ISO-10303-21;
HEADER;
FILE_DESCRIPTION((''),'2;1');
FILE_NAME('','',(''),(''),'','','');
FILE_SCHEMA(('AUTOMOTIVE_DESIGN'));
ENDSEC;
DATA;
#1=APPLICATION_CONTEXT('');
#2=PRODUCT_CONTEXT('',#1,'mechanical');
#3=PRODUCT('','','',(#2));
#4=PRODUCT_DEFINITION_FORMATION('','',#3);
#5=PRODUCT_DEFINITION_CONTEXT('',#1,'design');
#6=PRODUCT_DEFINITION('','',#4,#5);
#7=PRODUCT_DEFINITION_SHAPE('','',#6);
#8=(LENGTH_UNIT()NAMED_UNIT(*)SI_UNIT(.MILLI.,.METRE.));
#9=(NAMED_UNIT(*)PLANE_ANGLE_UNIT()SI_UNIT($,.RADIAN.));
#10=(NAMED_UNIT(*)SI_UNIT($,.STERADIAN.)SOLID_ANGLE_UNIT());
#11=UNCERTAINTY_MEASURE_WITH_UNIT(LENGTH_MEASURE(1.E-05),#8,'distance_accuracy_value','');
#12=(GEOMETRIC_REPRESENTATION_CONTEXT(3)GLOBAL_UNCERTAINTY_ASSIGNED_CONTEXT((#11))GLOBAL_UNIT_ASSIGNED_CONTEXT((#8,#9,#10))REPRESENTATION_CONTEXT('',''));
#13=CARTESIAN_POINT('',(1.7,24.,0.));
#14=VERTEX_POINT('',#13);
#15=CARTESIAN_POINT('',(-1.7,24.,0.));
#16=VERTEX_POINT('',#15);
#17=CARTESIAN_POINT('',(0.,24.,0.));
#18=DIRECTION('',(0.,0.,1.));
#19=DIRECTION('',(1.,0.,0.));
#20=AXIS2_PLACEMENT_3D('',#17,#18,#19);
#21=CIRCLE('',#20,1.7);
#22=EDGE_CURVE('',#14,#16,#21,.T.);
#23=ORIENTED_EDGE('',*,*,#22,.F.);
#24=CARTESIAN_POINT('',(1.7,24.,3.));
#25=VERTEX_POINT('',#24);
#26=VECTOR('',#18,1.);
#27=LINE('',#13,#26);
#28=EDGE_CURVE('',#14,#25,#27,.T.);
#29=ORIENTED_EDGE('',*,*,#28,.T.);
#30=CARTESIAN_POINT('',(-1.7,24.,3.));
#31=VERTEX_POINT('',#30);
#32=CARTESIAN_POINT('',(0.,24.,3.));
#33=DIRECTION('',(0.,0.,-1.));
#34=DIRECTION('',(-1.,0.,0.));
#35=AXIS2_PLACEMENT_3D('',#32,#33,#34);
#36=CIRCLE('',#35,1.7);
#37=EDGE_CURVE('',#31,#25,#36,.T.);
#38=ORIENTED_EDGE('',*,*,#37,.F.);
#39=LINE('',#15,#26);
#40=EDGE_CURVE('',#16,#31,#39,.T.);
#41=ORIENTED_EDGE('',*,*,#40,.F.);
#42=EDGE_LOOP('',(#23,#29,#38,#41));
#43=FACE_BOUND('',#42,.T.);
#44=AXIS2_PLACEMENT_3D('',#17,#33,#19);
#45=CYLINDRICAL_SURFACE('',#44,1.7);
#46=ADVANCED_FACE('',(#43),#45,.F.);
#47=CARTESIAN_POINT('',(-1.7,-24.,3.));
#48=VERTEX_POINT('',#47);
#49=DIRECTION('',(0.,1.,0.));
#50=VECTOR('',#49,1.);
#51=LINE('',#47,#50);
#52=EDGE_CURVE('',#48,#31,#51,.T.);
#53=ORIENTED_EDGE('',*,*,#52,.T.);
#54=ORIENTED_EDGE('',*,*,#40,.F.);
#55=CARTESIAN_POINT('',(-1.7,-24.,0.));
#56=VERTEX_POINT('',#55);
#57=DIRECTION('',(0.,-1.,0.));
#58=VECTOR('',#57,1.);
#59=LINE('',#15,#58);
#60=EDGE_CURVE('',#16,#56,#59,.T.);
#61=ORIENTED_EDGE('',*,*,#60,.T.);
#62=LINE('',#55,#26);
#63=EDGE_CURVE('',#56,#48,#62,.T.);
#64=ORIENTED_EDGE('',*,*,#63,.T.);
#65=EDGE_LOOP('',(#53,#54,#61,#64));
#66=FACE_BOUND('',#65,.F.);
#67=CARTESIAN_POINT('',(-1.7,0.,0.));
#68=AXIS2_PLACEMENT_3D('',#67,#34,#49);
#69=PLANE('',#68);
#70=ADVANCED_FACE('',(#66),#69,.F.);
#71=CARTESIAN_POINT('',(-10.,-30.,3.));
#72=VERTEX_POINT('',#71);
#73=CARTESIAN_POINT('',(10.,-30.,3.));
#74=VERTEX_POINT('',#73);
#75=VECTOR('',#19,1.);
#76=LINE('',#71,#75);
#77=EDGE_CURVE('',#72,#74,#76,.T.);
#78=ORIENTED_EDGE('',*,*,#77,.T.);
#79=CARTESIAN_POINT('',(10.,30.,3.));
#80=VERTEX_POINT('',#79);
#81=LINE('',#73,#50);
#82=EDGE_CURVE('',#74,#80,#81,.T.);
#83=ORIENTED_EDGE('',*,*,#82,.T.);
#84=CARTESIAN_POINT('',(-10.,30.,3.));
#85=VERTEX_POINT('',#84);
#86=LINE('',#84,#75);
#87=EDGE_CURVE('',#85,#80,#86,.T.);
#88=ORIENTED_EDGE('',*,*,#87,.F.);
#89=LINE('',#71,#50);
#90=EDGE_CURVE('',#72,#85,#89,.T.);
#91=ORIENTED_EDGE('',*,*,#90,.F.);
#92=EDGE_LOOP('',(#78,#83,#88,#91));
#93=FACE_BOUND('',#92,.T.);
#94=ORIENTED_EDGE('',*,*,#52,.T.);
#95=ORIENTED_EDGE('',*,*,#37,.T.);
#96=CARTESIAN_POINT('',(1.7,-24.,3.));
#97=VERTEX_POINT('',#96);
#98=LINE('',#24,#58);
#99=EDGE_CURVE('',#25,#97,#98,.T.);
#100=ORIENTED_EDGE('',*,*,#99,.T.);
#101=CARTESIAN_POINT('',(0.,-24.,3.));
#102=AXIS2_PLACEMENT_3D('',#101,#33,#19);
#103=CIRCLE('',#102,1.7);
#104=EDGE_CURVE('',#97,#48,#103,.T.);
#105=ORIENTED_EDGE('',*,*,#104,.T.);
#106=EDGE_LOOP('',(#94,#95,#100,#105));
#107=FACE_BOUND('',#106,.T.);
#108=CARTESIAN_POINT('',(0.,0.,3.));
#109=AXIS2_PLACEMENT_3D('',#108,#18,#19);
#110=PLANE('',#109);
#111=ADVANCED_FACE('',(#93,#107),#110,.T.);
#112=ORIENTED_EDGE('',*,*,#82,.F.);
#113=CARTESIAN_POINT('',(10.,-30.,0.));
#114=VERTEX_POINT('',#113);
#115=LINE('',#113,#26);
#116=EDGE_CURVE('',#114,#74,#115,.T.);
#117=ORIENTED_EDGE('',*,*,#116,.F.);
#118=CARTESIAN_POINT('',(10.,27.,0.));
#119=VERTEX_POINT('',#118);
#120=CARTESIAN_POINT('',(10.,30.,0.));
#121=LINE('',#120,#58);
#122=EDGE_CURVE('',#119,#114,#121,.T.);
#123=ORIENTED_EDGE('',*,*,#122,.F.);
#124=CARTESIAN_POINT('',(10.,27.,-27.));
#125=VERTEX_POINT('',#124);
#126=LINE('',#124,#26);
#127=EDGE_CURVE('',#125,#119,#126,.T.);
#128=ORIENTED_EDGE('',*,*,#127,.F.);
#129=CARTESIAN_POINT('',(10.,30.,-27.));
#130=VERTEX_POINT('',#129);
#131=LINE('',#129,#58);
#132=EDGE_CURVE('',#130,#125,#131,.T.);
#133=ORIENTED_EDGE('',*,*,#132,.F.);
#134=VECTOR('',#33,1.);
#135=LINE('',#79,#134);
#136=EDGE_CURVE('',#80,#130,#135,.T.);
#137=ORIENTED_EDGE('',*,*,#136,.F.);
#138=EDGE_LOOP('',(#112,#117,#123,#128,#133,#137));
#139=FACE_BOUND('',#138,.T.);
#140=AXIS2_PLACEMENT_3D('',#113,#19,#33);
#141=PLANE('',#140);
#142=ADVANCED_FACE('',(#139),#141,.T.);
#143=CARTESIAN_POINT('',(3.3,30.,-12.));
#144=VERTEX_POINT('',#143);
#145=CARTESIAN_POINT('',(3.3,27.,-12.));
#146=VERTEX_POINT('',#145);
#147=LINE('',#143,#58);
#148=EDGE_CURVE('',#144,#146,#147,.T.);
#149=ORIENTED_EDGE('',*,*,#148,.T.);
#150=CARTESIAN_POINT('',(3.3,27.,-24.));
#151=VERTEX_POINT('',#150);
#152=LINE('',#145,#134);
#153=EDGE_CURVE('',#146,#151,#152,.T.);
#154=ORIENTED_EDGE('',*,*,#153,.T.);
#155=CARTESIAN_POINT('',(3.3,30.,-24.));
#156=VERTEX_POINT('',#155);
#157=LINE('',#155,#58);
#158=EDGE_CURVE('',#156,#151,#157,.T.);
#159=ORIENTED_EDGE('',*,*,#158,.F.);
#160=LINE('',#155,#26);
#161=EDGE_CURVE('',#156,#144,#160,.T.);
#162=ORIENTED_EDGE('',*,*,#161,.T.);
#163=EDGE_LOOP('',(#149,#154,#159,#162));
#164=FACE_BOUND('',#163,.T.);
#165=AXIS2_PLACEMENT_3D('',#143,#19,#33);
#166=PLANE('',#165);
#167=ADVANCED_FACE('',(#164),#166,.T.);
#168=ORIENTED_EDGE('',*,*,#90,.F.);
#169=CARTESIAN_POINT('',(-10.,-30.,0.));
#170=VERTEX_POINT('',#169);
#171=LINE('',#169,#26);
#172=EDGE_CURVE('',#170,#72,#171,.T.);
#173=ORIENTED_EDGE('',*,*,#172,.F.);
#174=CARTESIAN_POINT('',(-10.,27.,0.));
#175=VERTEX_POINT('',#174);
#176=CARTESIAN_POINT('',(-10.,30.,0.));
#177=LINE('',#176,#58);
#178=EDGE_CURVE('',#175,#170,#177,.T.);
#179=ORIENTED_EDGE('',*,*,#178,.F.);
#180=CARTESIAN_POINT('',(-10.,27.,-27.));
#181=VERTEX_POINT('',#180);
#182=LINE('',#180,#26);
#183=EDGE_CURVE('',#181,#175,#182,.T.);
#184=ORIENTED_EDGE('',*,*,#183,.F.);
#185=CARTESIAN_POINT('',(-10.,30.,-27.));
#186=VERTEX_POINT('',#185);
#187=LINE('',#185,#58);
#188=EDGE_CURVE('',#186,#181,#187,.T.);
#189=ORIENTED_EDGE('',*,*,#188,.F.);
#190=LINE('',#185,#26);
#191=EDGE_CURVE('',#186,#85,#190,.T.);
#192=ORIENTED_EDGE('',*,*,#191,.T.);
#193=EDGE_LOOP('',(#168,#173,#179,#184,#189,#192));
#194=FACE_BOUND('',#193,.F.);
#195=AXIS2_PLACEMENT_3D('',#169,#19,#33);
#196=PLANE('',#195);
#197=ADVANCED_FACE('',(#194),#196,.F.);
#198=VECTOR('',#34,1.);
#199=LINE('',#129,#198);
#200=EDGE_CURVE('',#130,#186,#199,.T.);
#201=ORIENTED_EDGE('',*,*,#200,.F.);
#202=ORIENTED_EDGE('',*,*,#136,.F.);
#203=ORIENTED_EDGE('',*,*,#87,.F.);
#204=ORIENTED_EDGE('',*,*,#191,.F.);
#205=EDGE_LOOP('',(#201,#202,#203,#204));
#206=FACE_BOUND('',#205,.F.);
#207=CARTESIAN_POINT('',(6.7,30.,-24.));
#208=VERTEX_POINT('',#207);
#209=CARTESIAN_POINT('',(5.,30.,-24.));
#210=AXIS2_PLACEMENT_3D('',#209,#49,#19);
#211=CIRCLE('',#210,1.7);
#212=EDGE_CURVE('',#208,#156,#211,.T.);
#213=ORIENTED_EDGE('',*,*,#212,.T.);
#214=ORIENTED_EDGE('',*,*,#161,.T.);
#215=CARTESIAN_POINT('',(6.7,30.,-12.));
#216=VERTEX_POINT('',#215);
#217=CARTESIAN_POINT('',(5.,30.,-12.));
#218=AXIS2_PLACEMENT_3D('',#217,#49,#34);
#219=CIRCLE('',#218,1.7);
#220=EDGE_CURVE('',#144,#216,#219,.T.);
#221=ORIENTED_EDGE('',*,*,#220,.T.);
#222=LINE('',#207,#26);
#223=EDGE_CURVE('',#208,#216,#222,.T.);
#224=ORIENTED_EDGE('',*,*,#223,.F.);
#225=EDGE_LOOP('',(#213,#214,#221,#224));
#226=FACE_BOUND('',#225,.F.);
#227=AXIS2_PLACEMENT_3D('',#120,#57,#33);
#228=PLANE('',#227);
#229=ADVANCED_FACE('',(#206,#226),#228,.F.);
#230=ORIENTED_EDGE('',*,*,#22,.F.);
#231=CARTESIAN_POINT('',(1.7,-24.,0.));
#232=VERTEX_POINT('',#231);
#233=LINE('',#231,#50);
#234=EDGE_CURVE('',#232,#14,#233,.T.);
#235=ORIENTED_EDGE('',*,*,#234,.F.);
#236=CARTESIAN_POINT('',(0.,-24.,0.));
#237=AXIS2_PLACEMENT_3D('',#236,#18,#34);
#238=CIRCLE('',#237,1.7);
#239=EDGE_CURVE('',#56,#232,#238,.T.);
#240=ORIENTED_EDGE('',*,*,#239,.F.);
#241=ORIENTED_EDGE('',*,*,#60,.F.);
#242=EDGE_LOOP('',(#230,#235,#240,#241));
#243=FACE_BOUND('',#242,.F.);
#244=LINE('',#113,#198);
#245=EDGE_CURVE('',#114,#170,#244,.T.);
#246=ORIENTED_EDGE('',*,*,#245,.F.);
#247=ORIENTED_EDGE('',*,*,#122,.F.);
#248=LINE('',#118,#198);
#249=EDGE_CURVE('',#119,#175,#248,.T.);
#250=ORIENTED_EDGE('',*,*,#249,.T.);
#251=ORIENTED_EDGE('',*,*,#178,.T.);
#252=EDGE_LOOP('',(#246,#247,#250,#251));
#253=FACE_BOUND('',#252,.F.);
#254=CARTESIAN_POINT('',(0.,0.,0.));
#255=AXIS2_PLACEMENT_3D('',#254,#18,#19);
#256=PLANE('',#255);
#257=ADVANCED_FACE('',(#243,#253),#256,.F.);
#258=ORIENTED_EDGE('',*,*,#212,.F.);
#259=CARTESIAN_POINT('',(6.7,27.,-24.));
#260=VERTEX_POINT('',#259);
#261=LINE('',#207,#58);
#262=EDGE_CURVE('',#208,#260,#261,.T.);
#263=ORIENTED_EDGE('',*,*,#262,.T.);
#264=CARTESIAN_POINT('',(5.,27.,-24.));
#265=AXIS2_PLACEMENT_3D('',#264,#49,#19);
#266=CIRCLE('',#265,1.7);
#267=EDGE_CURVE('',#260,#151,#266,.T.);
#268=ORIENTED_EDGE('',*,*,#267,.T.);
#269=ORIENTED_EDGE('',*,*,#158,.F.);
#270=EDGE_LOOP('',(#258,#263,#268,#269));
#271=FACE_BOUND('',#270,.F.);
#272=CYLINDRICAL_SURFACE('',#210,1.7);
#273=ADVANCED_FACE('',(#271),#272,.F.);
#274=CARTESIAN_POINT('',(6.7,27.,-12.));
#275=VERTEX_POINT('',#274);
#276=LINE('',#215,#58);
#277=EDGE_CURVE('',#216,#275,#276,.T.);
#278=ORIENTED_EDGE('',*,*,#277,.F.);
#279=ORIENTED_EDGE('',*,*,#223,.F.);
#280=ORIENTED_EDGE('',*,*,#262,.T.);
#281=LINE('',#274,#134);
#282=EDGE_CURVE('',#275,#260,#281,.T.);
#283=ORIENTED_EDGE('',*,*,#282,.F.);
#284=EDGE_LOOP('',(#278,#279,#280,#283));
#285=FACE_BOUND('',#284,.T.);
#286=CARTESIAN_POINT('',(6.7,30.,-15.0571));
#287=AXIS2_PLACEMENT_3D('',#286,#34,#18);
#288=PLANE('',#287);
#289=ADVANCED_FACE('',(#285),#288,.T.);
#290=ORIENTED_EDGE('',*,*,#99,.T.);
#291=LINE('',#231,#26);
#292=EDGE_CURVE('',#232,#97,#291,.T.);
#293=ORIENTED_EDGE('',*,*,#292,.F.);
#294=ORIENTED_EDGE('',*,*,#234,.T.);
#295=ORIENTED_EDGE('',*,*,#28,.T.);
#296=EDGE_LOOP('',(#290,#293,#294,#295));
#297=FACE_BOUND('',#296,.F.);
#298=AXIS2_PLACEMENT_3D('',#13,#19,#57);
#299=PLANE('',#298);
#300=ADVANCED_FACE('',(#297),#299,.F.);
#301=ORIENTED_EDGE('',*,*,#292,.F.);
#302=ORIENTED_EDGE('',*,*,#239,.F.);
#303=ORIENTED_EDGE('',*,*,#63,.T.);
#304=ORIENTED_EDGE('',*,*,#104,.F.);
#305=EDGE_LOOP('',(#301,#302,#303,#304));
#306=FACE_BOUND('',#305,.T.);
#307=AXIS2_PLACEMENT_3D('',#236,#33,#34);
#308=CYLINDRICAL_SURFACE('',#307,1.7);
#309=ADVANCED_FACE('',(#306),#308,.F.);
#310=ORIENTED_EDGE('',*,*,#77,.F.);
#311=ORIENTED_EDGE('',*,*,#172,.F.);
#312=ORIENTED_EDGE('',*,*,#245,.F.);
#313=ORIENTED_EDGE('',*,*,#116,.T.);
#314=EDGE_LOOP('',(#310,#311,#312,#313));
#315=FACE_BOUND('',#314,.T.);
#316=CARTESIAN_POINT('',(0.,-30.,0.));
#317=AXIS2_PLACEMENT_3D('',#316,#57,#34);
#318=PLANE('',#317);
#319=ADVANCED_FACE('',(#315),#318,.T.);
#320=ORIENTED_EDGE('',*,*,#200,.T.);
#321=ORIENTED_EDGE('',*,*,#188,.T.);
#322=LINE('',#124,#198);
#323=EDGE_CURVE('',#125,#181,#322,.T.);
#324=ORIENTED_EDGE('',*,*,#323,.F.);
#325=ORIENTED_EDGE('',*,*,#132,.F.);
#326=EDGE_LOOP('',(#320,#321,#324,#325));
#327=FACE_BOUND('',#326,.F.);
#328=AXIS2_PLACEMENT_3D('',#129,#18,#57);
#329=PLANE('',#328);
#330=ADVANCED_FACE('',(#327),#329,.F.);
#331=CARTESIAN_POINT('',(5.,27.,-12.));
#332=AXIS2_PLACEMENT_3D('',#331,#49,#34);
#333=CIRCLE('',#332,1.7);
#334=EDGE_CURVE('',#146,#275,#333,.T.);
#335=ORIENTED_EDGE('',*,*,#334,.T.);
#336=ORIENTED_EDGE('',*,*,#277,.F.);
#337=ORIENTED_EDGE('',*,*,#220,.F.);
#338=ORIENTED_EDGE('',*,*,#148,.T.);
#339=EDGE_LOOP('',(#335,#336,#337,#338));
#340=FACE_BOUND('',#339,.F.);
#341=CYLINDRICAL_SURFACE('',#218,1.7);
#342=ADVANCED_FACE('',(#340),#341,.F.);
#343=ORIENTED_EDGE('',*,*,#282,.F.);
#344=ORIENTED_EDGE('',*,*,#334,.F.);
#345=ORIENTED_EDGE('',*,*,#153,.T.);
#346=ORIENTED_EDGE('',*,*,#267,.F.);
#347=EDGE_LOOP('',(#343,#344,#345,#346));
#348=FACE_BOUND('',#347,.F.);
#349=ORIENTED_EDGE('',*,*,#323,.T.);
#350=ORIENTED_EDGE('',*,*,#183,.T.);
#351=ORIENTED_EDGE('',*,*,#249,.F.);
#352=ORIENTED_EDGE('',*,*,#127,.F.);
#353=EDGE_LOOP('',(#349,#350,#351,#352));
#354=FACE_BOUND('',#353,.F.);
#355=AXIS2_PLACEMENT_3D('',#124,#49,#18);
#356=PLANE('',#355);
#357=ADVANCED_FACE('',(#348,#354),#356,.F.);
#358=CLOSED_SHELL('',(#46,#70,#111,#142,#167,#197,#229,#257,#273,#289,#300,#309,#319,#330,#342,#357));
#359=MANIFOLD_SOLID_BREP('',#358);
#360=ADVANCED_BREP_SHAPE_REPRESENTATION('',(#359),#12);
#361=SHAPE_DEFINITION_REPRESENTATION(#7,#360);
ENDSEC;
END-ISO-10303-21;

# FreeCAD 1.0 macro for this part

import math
import FreeCAD as App
import Part
import Sketcher
from FreeCAD import Vector
Q = App.Units.Quantity


def add_polygon(sketch, points):
    """Adds a closed chain of lines whose ends are joined by coincident constraints."""
    first, n = sketch.GeometryCount, len(points)
    for a, b in zip(points, points[1:] + points[:1]):
        sketch.addGeometry(Part.LineSegment(App.Vector(*a, 0), App.Vector(*b, 0)), False)
    for i in range(n):
        sketch.addConstraint(Sketcher.Constraint("Coincident", first + i, 2, first + (i + 1) % n, 1))

doc = App.newDocument("Part")
body = doc.addObject("PartDesign::Body", "Body")

sketch1 = body.newObject("Sketcher::SketchObject", "Sketch")
sketch1.AttachmentSupport = (doc.getObject("XY_Plane"), [""])
sketch1.MapMode = "FlatFace"
add_polygon(sketch1, [(-10, 30), (-10, -30), (10, -30), (10, 30)])
sketch1.addGeometry(Part.ArcOfCircle(Part.Circle(Vector(0, 24, 0), Vector(0, 0, 1), 1.7), math.radians(0), math.radians(180)), False)
sketch1.addGeometry(Part.LineSegment(Vector(1.7, 24, 0), Vector(1.7, -24, 0)), False)
sketch1.addGeometry(Part.ArcOfCircle(Part.Circle(Vector(0, -24, 0), Vector(0, 0, 1), 1.7), math.radians(180), math.radians(360)), False)
sketch1.addGeometry(Part.LineSegment(Vector(-1.7, -24, 0), Vector(-1.7, 24, 0)), False)
sketch1.addConstraint(Sketcher.Constraint("Tangent", 4, 1, 5, 1))
sketch1.addConstraint(Sketcher.Constraint("Tangent", 5, 2, 6, 2))
sketch1.addConstraint(Sketcher.Constraint("Tangent", 6, 1, 7, 1))
sketch1.addConstraint(Sketcher.Constraint("Tangent", 7, 2, 4, 2))
sketch1.addConstraint(Sketcher.Constraint("Vertical", 0))
sketch1.addConstraint(Sketcher.Constraint("Horizontal", 1))
sketch1.addConstraint(Sketcher.Constraint("Vertical", 2))
sketch1.addConstraint(Sketcher.Constraint("Horizontal", 3))
sketch1.addConstraint(Sketcher.Constraint("Vertical", 5))
sketch1.addConstraint(Sketcher.Constraint("Vertical", 7))
sketch1.addConstraint(Sketcher.Constraint("Symmetric", 4, 3, 6, 3, -1, 1))
sketch1.addConstraint(Sketcher.Constraint("Symmetric", 0, 2, 2, 2, -1, 1))
sketch1.addConstraint(Sketcher.Constraint("Radius", 4, Q("1.7 mm")))
sketch1.addConstraint(Sketcher.Constraint("DistanceX", 1, 1, 1, 2, Q("20 mm")))
sketch1.addConstraint(Sketcher.Constraint("DistanceY", 0, 2, 0, 1, Q("60 mm")))
sketch1.addConstraint(Sketcher.Constraint("DistanceY", 5, 2, 5, 1, Q("48 mm")))
pad1 = body.newObject("PartDesign::Pad", "Pad")
pad1.Profile = sketch1
pad1.Length = 3

sketch2 = body.newObject("Sketcher::SketchObject", "Sketch001")
sketch2.AttachmentSupport = (doc.getObject("YZ_Plane"), [""])
sketch2.MapMode = "FlatFace"
sketch2.AttachmentOffset = App.Placement(Vector(0, 0, 10), App.Rotation())
add_polygon(sketch2, [(30, -27), (30, 0), (27, 0), (27, -27)])
sketch2.addConstraint(Sketcher.Constraint("Vertical", 0))
sketch2.addConstraint(Sketcher.Constraint("Horizontal", 1))
sketch2.addConstraint(Sketcher.Constraint("Vertical", 2))
sketch2.addConstraint(Sketcher.Constraint("Horizontal", 3))
sketch2.addConstraint(Sketcher.Constraint("PointOnObject", 0, 2, -1))
sketch2.addConstraint(Sketcher.Constraint("DistanceX", 1, 2, 1, 1, Q("3 mm")))
sketch2.addConstraint(Sketcher.Constraint("DistanceX", -1, 1, 0, 2, Q("30 mm")))
sketch2.addConstraint(Sketcher.Constraint("DistanceY", 0, 1, 0, 2, Q("27 mm")))
pad2 = body.newObject("PartDesign::Pad", "Pad001")
pad2.Profile = sketch2
pad2.Length = 20
pad2.Reversed = True

sketch3 = body.newObject("Sketcher::SketchObject", "Sketch002")
sketch3.AttachmentSupport = (doc.getObject("XZ_Plane"), [""])
sketch3.MapMode = "FlatFace"
sketch3.AttachmentOffset = App.Placement(Vector(0, 0, -30), App.Rotation())
sketch3.addGeometry(Part.LineSegment(Vector(6.7, -12, 0), Vector(6.7, -24, 0)), False)
sketch3.addGeometry(Part.ArcOfCircle(Part.Circle(Vector(5, -24, 0), Vector(0, 0, 1), 1.7), math.radians(180), math.radians(360)), False)
sketch3.addGeometry(Part.LineSegment(Vector(3.3, -24, 0), Vector(3.3, -12, 0)), False)
sketch3.addGeometry(Part.ArcOfCircle(Part.Circle(Vector(5, -12, 0), Vector(0, 0, 1), 1.7), math.radians(0), math.radians(180)), False)
sketch3.addConstraint(Sketcher.Constraint("Tangent", 0, 2, 1, 2))
sketch3.addConstraint(Sketcher.Constraint("Tangent", 1, 1, 2, 1))
sketch3.addConstraint(Sketcher.Constraint("Tangent", 2, 2, 3, 2))
sketch3.addConstraint(Sketcher.Constraint("Tangent", 3, 1, 0, 1))
sketch3.addConstraint(Sketcher.Constraint("Vertical", 0))
sketch3.addConstraint(Sketcher.Constraint("Vertical", 2))
sketch3.addConstraint(Sketcher.Constraint("Radius", 1, Q("1.7 mm")))
sketch3.addConstraint(Sketcher.Constraint("DistanceY", 0, 2, 0, 1, Q("12 mm")))
sketch3.addConstraint(Sketcher.Constraint("DistanceY", 3, 3, -1, 1, Q("12 mm")))
sketch3.addConstraint(Sketcher.Constraint("DistanceX", -1, 1, 1, 3, Q("5 mm")))
pocket1 = body.newObject("PartDesign::Pocket", "Pocket")
pocket1.Profile = sketch3
pocket1.Length = 3
pocket1.Reversed = True

doc.recompute()
